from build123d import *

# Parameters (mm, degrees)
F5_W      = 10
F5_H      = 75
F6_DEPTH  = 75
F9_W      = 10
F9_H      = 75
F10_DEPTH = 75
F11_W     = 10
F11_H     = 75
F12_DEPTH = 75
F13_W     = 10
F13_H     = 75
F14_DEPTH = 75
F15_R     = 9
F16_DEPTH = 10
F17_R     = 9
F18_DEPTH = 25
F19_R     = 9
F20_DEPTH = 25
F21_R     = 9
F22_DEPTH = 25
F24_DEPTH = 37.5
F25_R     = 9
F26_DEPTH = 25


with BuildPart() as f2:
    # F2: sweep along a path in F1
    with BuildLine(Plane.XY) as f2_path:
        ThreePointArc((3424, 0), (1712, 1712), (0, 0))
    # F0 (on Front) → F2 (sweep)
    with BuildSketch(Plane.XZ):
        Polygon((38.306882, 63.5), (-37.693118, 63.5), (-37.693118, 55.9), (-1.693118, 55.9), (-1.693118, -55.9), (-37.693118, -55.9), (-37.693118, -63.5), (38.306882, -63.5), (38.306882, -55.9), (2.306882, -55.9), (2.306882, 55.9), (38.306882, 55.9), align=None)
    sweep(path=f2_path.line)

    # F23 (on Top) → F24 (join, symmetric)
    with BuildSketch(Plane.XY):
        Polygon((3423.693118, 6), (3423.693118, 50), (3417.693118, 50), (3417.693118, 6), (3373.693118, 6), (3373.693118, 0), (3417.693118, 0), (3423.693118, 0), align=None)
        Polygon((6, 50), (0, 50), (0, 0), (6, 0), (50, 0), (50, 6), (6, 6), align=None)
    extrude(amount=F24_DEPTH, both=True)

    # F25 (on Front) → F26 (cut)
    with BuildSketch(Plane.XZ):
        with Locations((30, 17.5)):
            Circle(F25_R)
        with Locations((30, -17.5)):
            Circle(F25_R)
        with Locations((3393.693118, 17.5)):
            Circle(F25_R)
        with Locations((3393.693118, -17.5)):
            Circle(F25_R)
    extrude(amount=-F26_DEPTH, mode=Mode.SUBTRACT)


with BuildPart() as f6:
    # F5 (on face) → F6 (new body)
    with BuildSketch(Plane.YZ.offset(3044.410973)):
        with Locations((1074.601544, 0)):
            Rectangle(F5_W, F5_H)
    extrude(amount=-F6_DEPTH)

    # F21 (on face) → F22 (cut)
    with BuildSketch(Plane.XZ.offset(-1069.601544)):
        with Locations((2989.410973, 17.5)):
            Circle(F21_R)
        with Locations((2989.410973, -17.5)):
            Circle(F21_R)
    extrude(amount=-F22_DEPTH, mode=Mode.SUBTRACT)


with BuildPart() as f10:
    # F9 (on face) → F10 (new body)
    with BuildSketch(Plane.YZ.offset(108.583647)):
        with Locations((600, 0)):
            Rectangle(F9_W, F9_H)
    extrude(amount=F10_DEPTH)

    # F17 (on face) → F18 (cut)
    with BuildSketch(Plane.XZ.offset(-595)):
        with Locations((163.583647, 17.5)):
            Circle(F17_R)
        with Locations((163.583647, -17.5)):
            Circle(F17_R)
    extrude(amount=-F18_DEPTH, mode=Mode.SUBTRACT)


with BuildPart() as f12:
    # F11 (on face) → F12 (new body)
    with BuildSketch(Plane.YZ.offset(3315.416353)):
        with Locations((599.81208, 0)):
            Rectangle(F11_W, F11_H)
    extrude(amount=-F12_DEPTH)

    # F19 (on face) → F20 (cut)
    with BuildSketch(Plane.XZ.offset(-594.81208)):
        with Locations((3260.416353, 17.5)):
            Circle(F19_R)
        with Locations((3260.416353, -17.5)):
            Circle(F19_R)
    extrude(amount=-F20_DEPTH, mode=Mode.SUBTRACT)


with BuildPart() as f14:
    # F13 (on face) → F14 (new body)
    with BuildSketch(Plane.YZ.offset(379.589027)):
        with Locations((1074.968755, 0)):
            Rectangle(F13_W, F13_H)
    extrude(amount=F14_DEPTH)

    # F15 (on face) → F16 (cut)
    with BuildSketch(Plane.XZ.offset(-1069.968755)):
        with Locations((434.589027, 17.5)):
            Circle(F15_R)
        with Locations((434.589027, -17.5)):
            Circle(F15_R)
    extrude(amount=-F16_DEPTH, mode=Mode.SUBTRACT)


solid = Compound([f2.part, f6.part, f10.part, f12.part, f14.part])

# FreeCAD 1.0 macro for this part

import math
import FreeCAD as App
import Part
import Sketcher
from FreeCAD import Vector

doc = App.newDocument("Part")
params = doc.addObject("Spreadsheet::Sheet", "Params")
for row, (alias, value) in enumerate([
    ("sketch1_width", "76 mm"),
    ("sketch1_width2", "36 mm"),
    ("sketch1_height", "7.6 mm"),
    ("sketch1_height2", "111.8 mm"),
    ("sketch2_radius", "1712 mm"),
    ("sketch3_width", "6 mm"),
    ("sketch3_width2", "44 mm"),
    ("pad1_length", "75 mm"),
    ("sketch4_diameter", "18 mm"),
    ("pocket1_length", "25 mm"),
    ("sketch5_width", "10 mm"),
    ("sketch5_height", "75 mm"),
    ("pad2_length", "75 mm"),
    ("sketch6_diameter", "18 mm"),
    ("pocket2_length", "25 mm"),
    ("sketch7_width", "10 mm"),
    ("sketch7_height", "75 mm"),
    ("pad3_length", "75 mm"),
    ("sketch8_diameter", "18 mm"),
    ("pocket3_length", "25 mm"),
    ("sketch9_width", "10 mm"),
    ("sketch9_height", "75 mm"),
    ("pad4_length", "75 mm"),
    ("sketch10_diameter", "18 mm"),
    ("pocket4_length", "25 mm"),
    ("sketch11_width", "10 mm"),
    ("sketch11_height", "75 mm"),
    ("pad5_length", "75 mm"),
    ("sketch12_diameter", "18 mm"),
    ("pocket5_length", "10 mm"),
], start=1):
    params.set(f"A{row}", alias)
    params.set(f"B{row}", "=" + value)
    params.setAlias(f"B{row}", alias)

body = doc.addObject("PartDesign::Body", "Body")

# Sketch on XZ plane
sketch1 = doc.addObject("Sketcher::SketchObject", "Sketch")
body.addObject(sketch1)
sketch1.AttachmentSupport = (doc.XZ_Plane, [""])
sketch1.MapMode = "FlatFace"
sketch1.addGeometry([
    Part.LineSegment(Vector(38, 64, 0), Vector(-38, 64, 0)),  # 0
    Part.LineSegment(Vector(-38, 64, 0), Vector(-38, 56, 0)),  # 1
    Part.LineSegment(Vector(-38, 56, 0), Vector(-2, 56, 0)),  # 2
    Part.LineSegment(Vector(-2, 56, 0), Vector(-2, -56, 0)),  # 3
    Part.LineSegment(Vector(-2, -56, 0), Vector(-38, -56, 0)),  # 4
    Part.LineSegment(Vector(-38, -56, 0), Vector(-38, -64, 0)),  # 5
    Part.LineSegment(Vector(-38, -64, 0), Vector(38, -64, 0)),  # 6
    Part.LineSegment(Vector(38, -64, 0), Vector(38, -56, 0)),  # 7
    Part.LineSegment(Vector(38, -56, 0), Vector(2, -56, 0)),  # 8
    Part.LineSegment(Vector(2, -56, 0), Vector(2, 56, 0)),  # 9
    Part.LineSegment(Vector(2, 56, 0), Vector(38, 56, 0)),  # 10
    Part.LineSegment(Vector(38, 56, 0), Vector(38, 64, 0)),  # 11
], False)
sketch1.addConstraint([
    Sketcher.Constraint("Coincident", 0, 2, 1, 1),
    Sketcher.Constraint("Coincident", 1, 2, 2, 1),
    Sketcher.Constraint("Coincident", 2, 2, 3, 1),
    Sketcher.Constraint("Coincident", 3, 2, 4, 1),
    Sketcher.Constraint("Coincident", 4, 2, 5, 1),
    Sketcher.Constraint("Coincident", 5, 2, 6, 1),
    Sketcher.Constraint("Coincident", 6, 2, 7, 1),
    Sketcher.Constraint("Coincident", 7, 2, 8, 1),
    Sketcher.Constraint("Coincident", 8, 2, 9, 1),
    Sketcher.Constraint("Coincident", 9, 2, 10, 1),
    Sketcher.Constraint("Coincident", 10, 2, 11, 1),
    Sketcher.Constraint("Coincident", 11, 2, 0, 1),
    Sketcher.Constraint("Horizontal", 0),
    Sketcher.Constraint("Vertical", 1),
    Sketcher.Constraint("Horizontal", 2),
    Sketcher.Constraint("Vertical", 3),
    Sketcher.Constraint("Horizontal", 4),
    Sketcher.Constraint("Vertical", 5),
    Sketcher.Constraint("Horizontal", 6),
    Sketcher.Constraint("Vertical", 7),
    Sketcher.Constraint("Horizontal", 8),
    Sketcher.Constraint("Vertical", 9),
    Sketcher.Constraint("Horizontal", 10),
    Sketcher.Constraint("Vertical", 11),
    Sketcher.Constraint("Symmetric", 1, 2, 4, 2, -1),
    Sketcher.Constraint("Symmetric", 7, 2, 10, 2, -1),
    Sketcher.Constraint("Horizontal", 4, 2, 7, 2),
    Sketcher.Constraint("Equal", 4, 8),
    Sketcher.Constraint("Equal", 1, 5),
    Sketcher.Constraint("DistanceX", 0, 2, 0, 1, 76.0),
    Sketcher.Constraint("DistanceX", 2, 1, 2, 2, 36.0),
    Sketcher.Constraint("DistanceY", 1, 2, 1, 1, 7.6),
    Sketcher.Constraint("DistanceY", 3, 2, 3, 1, 111.8),
    Sketcher.Constraint("DistanceX", -1, 1, 8, 2, 2.306882),
])
sketch1.setExpression("Constraints[29]", "Params.sketch1_width")
sketch1.setExpression("Constraints[30]", "Params.sketch1_width2")
sketch1.setExpression("Constraints[31]", "Params.sketch1_height")
sketch1.setExpression("Constraints[32]", "Params.sketch1_height2")

# Sketch on XY plane
sketch2 = doc.addObject("Sketcher::SketchObject", "Sketch001")
body.addObject(sketch2)
sketch2.AttachmentSupport = (doc.XY_Plane, [""])
sketch2.MapMode = "FlatFace"
sketch2.addGeometry(Part.ArcOfCircle(Part.Circle(Vector(1712, 0, 0), Vector(0, 0, 1), 1712), math.radians(0), math.radians(180)), False)
sketch2.addConstraint([
    Sketcher.Constraint("Coincident", 0, 2, -1, 1),
    Sketcher.Constraint("PointOnObject", 0, 3, -1),
    Sketcher.Constraint("PointOnObject", 0, 1, -1),
    Sketcher.Constraint("Radius", 0, 1712.0),
])
sketch2.setExpression("Constraints[3]", "Params.sketch2_radius")
doc.recompute()

additivepipe = doc.addObject("PartDesign::AdditivePipe", "AdditivePipe")
body.addObject(additivepipe)
additivepipe.Profile = sketch1
additivepipe.Spine = (sketch2, ["Edge1"])

# Sketch on XY plane
sketch3 = doc.addObject("Sketcher::SketchObject", "Sketch002")
body.addObject(sketch3)
sketch3.AttachmentSupport = (doc.XY_Plane, [""])
sketch3.MapMode = "FlatFace"
sketch3.addGeometry([
    Part.LineSegment(Vector(3424, 50, 0), Vector(3418, 50, 0)),  # 0
    Part.LineSegment(Vector(3418, 50, 0), Vector(3418, 6, 0)),  # 1
    Part.LineSegment(Vector(3418, 6, 0), Vector(3374, 6, 0)),  # 2
    Part.LineSegment(Vector(3374, 6, 0), Vector(3374, 0, 0)),  # 3
    Part.LineSegment(Vector(3374, 0, 0), Vector(3424, 0, 0)),  # 4
    Part.LineSegment(Vector(3424, 0, 0), Vector(3424, 50, 0)),  # 5
    Part.LineSegment(Vector(6, 50, 0), Vector(0, 50, 0)),  # 6
    Part.LineSegment(Vector(0, 50, 0), Vector(0, 0, 0)),  # 7
    Part.LineSegment(Vector(0, 0, 0), Vector(50, 0, 0)),  # 8
    Part.LineSegment(Vector(50, 0, 0), Vector(50, 6, 0)),  # 9
    Part.LineSegment(Vector(50, 6, 0), Vector(6, 6, 0)),  # 10
    Part.LineSegment(Vector(6, 6, 0), Vector(6, 50, 0)),  # 11
], False)
sketch3.addConstraint([
    Sketcher.Constraint("Coincident", 0, 2, 1, 1),
    Sketcher.Constraint("Coincident", 1, 2, 2, 1),
    Sketcher.Constraint("Coincident", 2, 2, 3, 1),
    Sketcher.Constraint("Coincident", 3, 2, 4, 1),
    Sketcher.Constraint("Coincident", 4, 2, 5, 1),
    Sketcher.Constraint("Coincident", 5, 2, 0, 1),
    Sketcher.Constraint("Coincident", 6, 2, 7, 1),
    Sketcher.Constraint("Coincident", 7, 2, 8, 1),
    Sketcher.Constraint("Coincident", 8, 2, 9, 1),
    Sketcher.Constraint("Coincident", 9, 2, 10, 1),
    Sketcher.Constraint("Coincident", 10, 2, 11, 1),
    Sketcher.Constraint("Coincident", 11, 2, 6, 1),
    Sketcher.Constraint("Horizontal", 0),
    Sketcher.Constraint("Vertical", 1),
    Sketcher.Constraint("Horizontal", 2),
    Sketcher.Constraint("Vertical", 3),
    Sketcher.Constraint("Horizontal", 4),
    Sketcher.Constraint("Vertical", 5),
    Sketcher.Constraint("Horizontal", 6),
    Sketcher.Constraint("Vertical", 7),
    Sketcher.Constraint("Horizontal", 8),
    Sketcher.Constraint("Vertical", 9),
    Sketcher.Constraint("Horizontal", 10),
    Sketcher.Constraint("Vertical", 11),
    Sketcher.Constraint("Coincident", 7, 2, -1, 1),
    Sketcher.Constraint("PointOnObject", 3, 2, -1),
    Sketcher.Constraint("Horizontal", 5, 2, 6, 2),
    Sketcher.Constraint("Horizontal", 2, 2, 9, 2),
    Sketcher.Constraint("Equal", 0, 6),
    Sketcher.Constraint("Equal", 4, 8),
    Sketcher.Constraint("Equal", 10, 1),
    Sketcher.Constraint("Equal", 6, 3),
    Sketcher.Constraint("DistanceX", 0, 2, 0, 1, 6.0),
    Sketcher.Constraint("DistanceX", 2, 2, 2, 1, 44.0),
    Sketcher.Constraint("DistanceX", -1, 1, 0, 2, 3417.693118),
])
sketch3.setExpression("Constraints[32]", "Params.sketch3_width")
sketch3.setExpression("Constraints[33]", "Params.sketch3_width2")
pad1 = doc.addObject("PartDesign::Pad", "Pad")
body.addObject(pad1)
pad1.Profile = sketch3
pad1.setExpression("Length", "Params.pad1_length")
pad1.Midplane = True

# Sketch on XZ plane
sketch4 = doc.addObject("Sketcher::SketchObject", "Sketch003")
body.addObject(sketch4)
sketch4.AttachmentSupport = (doc.XZ_Plane, [""])
sketch4.MapMode = "FlatFace"
sketch4.addGeometry([
    Part.Circle(Vector(30, 18, 0), Vector(0, 0, 1), 9),
    Part.Circle(Vector(30, -18, 0), Vector(0, 0, 1), 9),
    Part.Circle(Vector(3394, 18, 0), Vector(0, 0, 1), 9),
    Part.Circle(Vector(3394, -18, 0), Vector(0, 0, 1), 9),
], False)
sketch4.addConstraint([
    Sketcher.Constraint("Equal", 0, 1),
    Sketcher.Constraint("Equal", 1, 2),
    Sketcher.Constraint("Equal", 2, 3),
    Sketcher.Constraint("Symmetric", 0, 3, 1, 3, -1),
    Sketcher.Constraint("Symmetric", 2, 3, 3, 3, -1),
    Sketcher.Constraint("Horizontal", 0, 3, 2, 3),
    Sketcher.Constraint("Diameter", 0, 18.0),
    Sketcher.Constraint("DistanceX", -1, 1, 0, 3, 30.0),
    Sketcher.Constraint("DistanceY", 1, 3, 0, 3, 35.0),
    Sketcher.Constraint("DistanceX", -1, 1, 2, 3, 3393.693118),
])
sketch4.setExpression("Constraints[6]", "Params.sketch4_diameter")
pocket1 = doc.addObject("PartDesign::Pocket", "Pocket")
body.addObject(pocket1)
pocket1.Profile = sketch4
pocket1.setExpression("Length", "Params.pocket1_length")
body2 = doc.addObject("PartDesign::Body", "Body001")

# Sketch on YZ plane
sketch5 = doc.addObject("Sketcher::SketchObject", "Sketch004")
body2.addObject(sketch5)
sketch5.AttachmentSupport = (doc.getObject("YZ_Plane001"), [""])
sketch5.MapMode = "FlatFace"
sketch5.AttachmentOffset = App.Placement(Vector(0, 0, 3044.410973), App.Rotation())
sketch5.addGeometry([
    Part.LineSegment(Vector(1070, 38, 0), Vector(1070, -38, 0)),
    Part.LineSegment(Vector(1070, -38, 0), Vector(1080, -38, 0)),
    Part.LineSegment(Vector(1080, -38, 0), Vector(1080, 38, 0)),
    Part.LineSegment(Vector(1080, 38, 0), Vector(1070, 38, 0)),
], False)
sketch5.addConstraint([
    Sketcher.Constraint("Coincident", 0, 2, 1, 1),
    Sketcher.Constraint("Coincident", 1, 2, 2, 1),
    Sketcher.Constraint("Coincident", 2, 2, 3, 1),
    Sketcher.Constraint("Coincident", 3, 2, 0, 1),
    Sketcher.Constraint("Vertical", 0),
    Sketcher.Constraint("Horizontal", 1),
    Sketcher.Constraint("Vertical", 2),
    Sketcher.Constraint("Horizontal", 3),
    Sketcher.Constraint("DistanceX", 1, 1, 1, 2, 10.0),
    Sketcher.Constraint("DistanceY", 0, 2, 0, 1, 75.0),
    Sketcher.Constraint("DistanceY", 0, 2, -1, 1, 37.5),
    Sketcher.Constraint("DistanceX", -1, 1, 0, 2, 1069.601544),
])
sketch5.setExpression("Constraints[8]", "Params.sketch5_width")
sketch5.setExpression("Constraints[9]", "Params.sketch5_height")
pad2 = doc.addObject("PartDesign::Pad", "Pad001")
body2.addObject(pad2)
pad2.Profile = sketch5
pad2.setExpression("Length", "Params.pad2_length")
pad2.Reversed = True

# Sketch on XZ plane
sketch6 = doc.addObject("Sketcher::SketchObject", "Sketch005")
body2.addObject(sketch6)
sketch6.AttachmentSupport = (doc.getObject("XZ_Plane001"), [""])
sketch6.MapMode = "FlatFace"
sketch6.AttachmentOffset = App.Placement(Vector(0, 0, -1069.601544), App.Rotation())
sketch6.addGeometry([
    Part.Circle(Vector(2989, 18, 0), Vector(0, 0, 1), 9),
    Part.Circle(Vector(2989, -18, 0), Vector(0, 0, 1), 9),
], False)
sketch6.addConstraint([
    Sketcher.Constraint("Equal", 0, 1),
    Sketcher.Constraint("Symmetric", 0, 3, 1, 3, -1),
    Sketcher.Constraint("Diameter", 0, 18.0),
    Sketcher.Constraint("DistanceY", 1, 3, 0, 3, 35.0),
    Sketcher.Constraint("DistanceX", -1, 1, 0, 3, 2989.410973),
])
sketch6.setExpression("Constraints[2]", "Params.sketch6_diameter")
pocket2 = doc.addObject("PartDesign::Pocket", "Pocket001")
body2.addObject(pocket2)
pocket2.Profile = sketch6
pocket2.setExpression("Length", "Params.pocket2_length")
body3 = doc.addObject("PartDesign::Body", "Body002")

# Sketch on YZ plane
sketch7 = doc.addObject("Sketcher::SketchObject", "Sketch006")
body3.addObject(sketch7)
sketch7.AttachmentSupport = (doc.getObject("YZ_Plane002"), [""])
sketch7.MapMode = "FlatFace"
sketch7.AttachmentOffset = App.Placement(Vector(0, 0, 108.583647), App.Rotation())
sketch7.addGeometry([
    Part.LineSegment(Vector(595, 38, 0), Vector(595, -38, 0)),
    Part.LineSegment(Vector(595, -38, 0), Vector(605, -38, 0)),
    Part.LineSegment(Vector(605, -38, 0), Vector(605, 38, 0)),
    Part.LineSegment(Vector(605, 38, 0), Vector(595, 38, 0)),
], False)
sketch7.addConstraint([
    Sketcher.Constraint("Coincident", 0, 2, 1, 1),
    Sketcher.Constraint("Coincident", 1, 2, 2, 1),
    Sketcher.Constraint("Coincident", 2, 2, 3, 1),
    Sketcher.Constraint("Coincident", 3, 2, 0, 1),
    Sketcher.Constraint("Vertical", 0),
    Sketcher.Constraint("Horizontal", 1),
    Sketcher.Constraint("Vertical", 2),
    Sketcher.Constraint("Horizontal", 3),
    Sketcher.Constraint("DistanceX", 1, 1, 1, 2, 10.0),
    Sketcher.Constraint("DistanceY", 0, 2, 0, 1, 75.0),
    Sketcher.Constraint("DistanceX", -1, 1, 0, 2, 595.0),
    Sketcher.Constraint("DistanceY", 0, 2, -1, 1, 37.5),
])
sketch7.setExpression("Constraints[8]", "Params.sketch7_width")
sketch7.setExpression("Constraints[9]", "Params.sketch7_height")
pad3 = doc.addObject("PartDesign::Pad", "Pad002")
body3.addObject(pad3)
pad3.Profile = sketch7
pad3.setExpression("Length", "Params.pad3_length")

# Sketch on XZ plane
sketch8 = doc.addObject("Sketcher::SketchObject", "Sketch007")
body3.addObject(sketch8)
sketch8.AttachmentSupport = (doc.getObject("XZ_Plane002"), [""])
sketch8.MapMode = "FlatFace"
sketch8.AttachmentOffset = App.Placement(Vector(0, 0, -595), App.Rotation())
sketch8.addGeometry([
    Part.Circle(Vector(164, 18, 0), Vector(0, 0, 1), 9),
    Part.Circle(Vector(164, -18, 0), Vector(0, 0, 1), 9),
], False)
sketch8.addConstraint([
    Sketcher.Constraint("Equal", 0, 1),
    Sketcher.Constraint("Symmetric", 0, 3, 1, 3, -1),
    Sketcher.Constraint("Diameter", 0, 18.0),
    Sketcher.Constraint("DistanceY", 1, 3, 0, 3, 35.0),
    Sketcher.Constraint("DistanceX", -1, 1, 0, 3, 163.583647),
])
sketch8.setExpression("Constraints[2]", "Params.sketch8_diameter")
pocket3 = doc.addObject("PartDesign::Pocket", "Pocket002")
body3.addObject(pocket3)
pocket3.Profile = sketch8
pocket3.setExpression("Length", "Params.pocket3_length")
body4 = doc.addObject("PartDesign::Body", "Body003")

# Sketch on YZ plane
sketch9 = doc.addObject("Sketcher::SketchObject", "Sketch008")
body4.addObject(sketch9)
sketch9.AttachmentSupport = (doc.getObject("YZ_Plane003"), [""])
sketch9.MapMode = "FlatFace"
sketch9.AttachmentOffset = App.Placement(Vector(0, 0, 3315.416353), App.Rotation())
sketch9.addGeometry([
    Part.LineSegment(Vector(595, 38, 0), Vector(595, -38, 0)),
    Part.LineSegment(Vector(595, -38, 0), Vector(605, -38, 0)),
    Part.LineSegment(Vector(605, -38, 0), Vector(605, 38, 0)),
    Part.LineSegment(Vector(605, 38, 0), Vector(595, 38, 0)),
], False)
sketch9.addConstraint([
    Sketcher.Constraint("Coincident", 0, 2, 1, 1),
    Sketcher.Constraint("Coincident", 1, 2, 2, 1),
    Sketcher.Constraint("Coincident", 2, 2, 3, 1),
    Sketcher.Constraint("Coincident", 3, 2, 0, 1),
    Sketcher.Constraint("Vertical", 0),
    Sketcher.Constraint("Horizontal", 1),
    Sketcher.Constraint("Vertical", 2),
    Sketcher.Constraint("Horizontal", 3),
    Sketcher.Constraint("DistanceX", 1, 1, 1, 2, 10.0),
    Sketcher.Constraint("DistanceY", 0, 2, 0, 1, 75.0),
    Sketcher.Constraint("DistanceY", 0, 2, -1, 1, 37.5),
    Sketcher.Constraint("DistanceX", -1, 1, 0, 2, 594.81208),
])
sketch9.setExpression("Constraints[8]", "Params.sketch9_width")
sketch9.setExpression("Constraints[9]", "Params.sketch9_height")
pad4 = doc.addObject("PartDesign::Pad", "Pad003")
body4.addObject(pad4)
pad4.Profile = sketch9
pad4.setExpression("Length", "Params.pad4_length")
pad4.Reversed = True

# Sketch on XZ plane
sketch10 = doc.addObject("Sketcher::SketchObject", "Sketch009")
body4.addObject(sketch10)
sketch10.AttachmentSupport = (doc.getObject("XZ_Plane003"), [""])
sketch10.MapMode = "FlatFace"
sketch10.AttachmentOffset = App.Placement(Vector(0, 0, -594.81208), App.Rotation())
sketch10.addGeometry([
    Part.Circle(Vector(3260, 18, 0), Vector(0, 0, 1), 9),
    Part.Circle(Vector(3260, -18, 0), Vector(0, 0, 1), 9),
], False)
sketch10.addConstraint([
    Sketcher.Constraint("Equal", 0, 1),
    Sketcher.Constraint("Symmetric", 0, 3, 1, 3, -1),
    Sketcher.Constraint("Diameter", 0, 18.0),
    Sketcher.Constraint("DistanceY", 1, 3, 0, 3, 35.0),
    Sketcher.Constraint("DistanceX", -1, 1, 0, 3, 3260.416353),
])
sketch10.setExpression("Constraints[2]", "Params.sketch10_diameter")
pocket4 = doc.addObject("PartDesign::Pocket", "Pocket003")
body4.addObject(pocket4)
pocket4.Profile = sketch10
pocket4.setExpression("Length", "Params.pocket4_length")
body5 = doc.addObject("PartDesign::Body", "Body004")

# Sketch on YZ plane
sketch11 = doc.addObject("Sketcher::SketchObject", "Sketch010")
body5.addObject(sketch11)
sketch11.AttachmentSupport = (doc.getObject("YZ_Plane004"), [""])
sketch11.MapMode = "FlatFace"
sketch11.AttachmentOffset = App.Placement(Vector(0, 0, 379.589027), App.Rotation())
sketch11.addGeometry([
    Part.LineSegment(Vector(1070, 38, 0), Vector(1070, -38, 0)),
    Part.LineSegment(Vector(1070, -38, 0), Vector(1080, -38, 0)),
    Part.LineSegment(Vector(1080, -38, 0), Vector(1080, 38, 0)),
    Part.LineSegment(Vector(1080, 38, 0), Vector(1070, 38, 0)),
], False)
sketch11.addConstraint([
    Sketcher.Constraint("Coincident", 0, 2, 1, 1),
    Sketcher.Constraint("Coincident", 1, 2, 2, 1),
    Sketcher.Constraint("Coincident", 2, 2, 3, 1),
    Sketcher.Constraint("Coincident", 3, 2, 0, 1),
    Sketcher.Constraint("Vertical", 0),
    Sketcher.Constraint("Horizontal", 1),
    Sketcher.Constraint("Vertical", 2),
    Sketcher.Constraint("Horizontal", 3),
    Sketcher.Constraint("DistanceX", 1, 1, 1, 2, 10.0),
    Sketcher.Constraint("DistanceY", 0, 2, 0, 1, 75.0),
    Sketcher.Constraint("DistanceY", 0, 2, -1, 1, 37.5),
    Sketcher.Constraint("DistanceX", -1, 1, 0, 2, 1069.968755),
])
sketch11.setExpression("Constraints[8]", "Params.sketch11_width")
sketch11.setExpression("Constraints[9]", "Params.sketch11_height")
pad5 = doc.addObject("PartDesign::Pad", "Pad004")
body5.addObject(pad5)
pad5.Profile = sketch11
pad5.setExpression("Length", "Params.pad5_length")

# Sketch on XZ plane
sketch12 = doc.addObject("Sketcher::SketchObject", "Sketch011")
body5.addObject(sketch12)
sketch12.AttachmentSupport = (doc.getObject("XZ_Plane004"), [""])
sketch12.MapMode = "FlatFace"
sketch12.AttachmentOffset = App.Placement(Vector(0, 0, -1069.968755), App.Rotation())
sketch12.addGeometry([
    Part.Circle(Vector(435, 18, 0), Vector(0, 0, 1), 9),
    Part.Circle(Vector(435, -18, 0), Vector(0, 0, 1), 9),
], False)
sketch12.addConstraint([
    Sketcher.Constraint("Equal", 0, 1),
    Sketcher.Constraint("Symmetric", 0, 3, 1, 3, -1),
    Sketcher.Constraint("Diameter", 0, 18.0),
    Sketcher.Constraint("DistanceY", 1, 3, 0, 3, 35.0),
    Sketcher.Constraint("DistanceX", -1, 1, 0, 3, 434.589027),
])
sketch12.setExpression("Constraints[2]", "Params.sketch12_diameter")
pocket5 = doc.addObject("PartDesign::Pocket", "Pocket004")
body5.addObject(pocket5)
pocket5.Profile = sketch12
pocket5.setExpression("Length", "Params.pocket5_length")

doc.recompute()
